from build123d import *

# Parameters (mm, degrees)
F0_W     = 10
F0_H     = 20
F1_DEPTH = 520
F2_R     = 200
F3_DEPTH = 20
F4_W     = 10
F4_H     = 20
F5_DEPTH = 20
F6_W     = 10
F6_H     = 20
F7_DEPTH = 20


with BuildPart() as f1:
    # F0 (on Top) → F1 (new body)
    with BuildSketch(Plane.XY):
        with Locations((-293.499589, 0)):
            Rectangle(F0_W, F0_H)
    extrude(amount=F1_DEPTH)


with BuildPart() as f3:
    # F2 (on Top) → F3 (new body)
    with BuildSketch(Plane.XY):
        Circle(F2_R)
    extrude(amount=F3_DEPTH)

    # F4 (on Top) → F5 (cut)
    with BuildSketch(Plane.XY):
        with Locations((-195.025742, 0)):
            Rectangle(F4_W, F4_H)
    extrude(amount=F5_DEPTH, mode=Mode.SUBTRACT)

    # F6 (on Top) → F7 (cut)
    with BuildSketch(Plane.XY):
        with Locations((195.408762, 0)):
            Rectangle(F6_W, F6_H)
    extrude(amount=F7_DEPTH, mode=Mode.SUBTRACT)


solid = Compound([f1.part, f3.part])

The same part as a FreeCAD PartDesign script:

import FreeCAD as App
import Part
import Sketcher

V = App.Vector
Q = App.Units.Quantity


def add_polygon(sketch, points):
    """Adds a closed chain of lines whose ends are joined by coincident constraints."""
    first, n = sketch.GeometryCount, len(points)
    for a, b in zip(points, points[1:] + points[:1]):
        sketch.addGeometry(Part.LineSegment(App.Vector(*a, 0), App.Vector(*b, 0)), False)
    for i in range(n):
        sketch.addConstraint(Sketcher.Constraint("Coincident", first + i, 2, first + (i + 1) % n, 1))

doc = App.newDocument("Part")
params = doc.addObject("Spreadsheet::Sheet", "Params")
for row, (alias, value) in enumerate([
    ("sketch1_width", "10 mm"),
    ("sketch1_height", "20 mm"),
    ("pad1_length", "520 mm"),
    ("sketch2_diameter", "400 mm"),
    ("pad2_length", "20 mm"),
    ("sketch3_width", "10 mm"),
    ("sketch3_height", "20 mm"),
    ("pocket1_length", "20 mm"),
    ("sketch4_width", "10 mm"),
    ("sketch4_height", "20 mm"),
    ("pocket2_length", "20 mm"),
], start=1):
    params.set(f"A{row}", alias)
    params.set(f"B{row}", "=" + value)
    params.setAlias(f"B{row}", alias)

body = doc.addObject("PartDesign::Body", "Body")

sketch1 = body.newObject("Sketcher::SketchObject", "Sketch")
sketch1.AttachmentSupport = (doc.getObject("XY_Plane"), [""])
sketch1.MapMode = "FlatFace"
add_polygon(sketch1, [(-298.499589, 10), (-298.499589, -10), (-288.499589, -10), (-288.499589, 10)])
sketch1.addConstraint([
    Sketcher.Constraint("Vertical", 0),
    Sketcher.Constraint("Horizontal", 1),
    Sketcher.Constraint("Vertical", 2),
    Sketcher.Constraint("Horizontal", 3),
    Sketcher.Constraint("DistanceX", 1, 1, 1, 2, Q("10 mm")),
    Sketcher.Constraint("DistanceY", 0, 2, 0, 1, Q("20 mm")),
    Sketcher.Constraint("DistanceY", 0, 2, -1, 1, Q("10 mm")),
    Sketcher.Constraint("DistanceX", 0, 2, -1, 1, Q("298.499589 mm")),
])
sketch1.setExpression("Constraints[8]", "Params.sketch1_width")
sketch1.setExpression("Constraints[9]", "Params.sketch1_height")
pad1 = body.newObject("PartDesign::Pad", "Pad")
pad1.Profile = sketch1
pad1.setExpression("Length", "Params.pad1_length")
body2 = doc.addObject("PartDesign::Body", "Body001")

sketch2 = body2.newObject("Sketcher::SketchObject", "Sketch001")
sketch2.AttachmentSupport = (doc.getObject("XY_Plane001"), [""])
sketch2.MapMode = "FlatFace"
sketch2.addGeometry(Part.Circle(V(0, 0, 0), V(0, 0, 1), 200), False)
sketch2.addConstraint([
    Sketcher.Constraint("Coincident", 0, 3, -1, 1),
    Sketcher.Constraint("Diameter", 0, Q("400 mm")),
])
sketch2.setExpression("Constraints[1]", "Params.sketch2_diameter")
pad2 = body2.newObject("PartDesign::Pad", "Pad001")
pad2.Profile = sketch2
pad2.setExpression("Length", "Params.pad2_length")

sketch3 = body2.newObject("Sketcher::SketchObject", "Sketch002")
sketch3.AttachmentSupport = (doc.getObject("XY_Plane001"), [""])
sketch3.MapMode = "FlatFace"
add_polygon(sketch3, [(-200.025742, 10), (-200.025742, -10), (-190.025742, -10), (-190.025742, 10)])
sketch3.addConstraint([
    Sketcher.Constraint("Vertical", 0),
    Sketcher.Constraint("Horizontal", 1),
    Sketcher.Constraint("Vertical", 2),
    Sketcher.Constraint("Horizontal", 3),
    Sketcher.Constraint("DistanceX", 1, 1, 1, 2, Q("10 mm")),
    Sketcher.Constraint("DistanceY", 0, 2, 0, 1, Q("20 mm")),
    Sketcher.Constraint("DistanceY", 0, 2, -1, 1, Q("10 mm")),
    Sketcher.Constraint("DistanceX", 0, 2, -1, 1, Q("200.025742 mm")),
])
sketch3.setExpression("Constraints[8]", "Params.sketch3_width")
sketch3.setExpression("Constraints[9]", "Params.sketch3_height")
pocket1 = body2.newObject("PartDesign::Pocket", "Pocket")
pocket1.Profile = sketch3
pocket1.setExpression("Length", "Params.pocket1_length")
pocket1.Reversed = True

sketch4 = body2.newObject("Sketcher::SketchObject", "Sketch003")
sketch4.AttachmentSupport = (doc.getObject("XY_Plane001"), [""])
sketch4.MapMode = "FlatFace"
add_polygon(sketch4, [(190.408762, 10), (190.408762, -10), (200.408762, -10), (200.408762, 10)])
sketch4.addConstraint([
    Sketcher.Constraint("Vertical", 0),
    Sketcher.Constraint("Horizontal", 1),
    Sketcher.Constraint("Vertical", 2),
    Sketcher.Constraint("Horizontal", 3),
    Sketcher.Constraint("DistanceX", 1, 1, 1, 2, Q("10 mm")),
    Sketcher.Constraint("DistanceY", 0, 2, 0, 1, Q("20 mm")),
    Sketcher.Constraint("DistanceY", 0, 2, -1, 1, Q("10 mm")),
    Sketcher.Constraint("DistanceX", -1, 1, 0, 2, Q("190.408762 mm")),
])
sketch4.setExpression("Constraints[8]", "Params.sketch4_width")
sketch4.setExpression("Constraints[9]", "Params.sketch4_height")
pocket2 = body2.newObject("PartDesign::Pocket", "Pocket001")
pocket2.Profile = sketch4
pocket2.setExpression("Length", "Params.pocket2_length")
pocket2.Reversed = True

doc.recompute()
